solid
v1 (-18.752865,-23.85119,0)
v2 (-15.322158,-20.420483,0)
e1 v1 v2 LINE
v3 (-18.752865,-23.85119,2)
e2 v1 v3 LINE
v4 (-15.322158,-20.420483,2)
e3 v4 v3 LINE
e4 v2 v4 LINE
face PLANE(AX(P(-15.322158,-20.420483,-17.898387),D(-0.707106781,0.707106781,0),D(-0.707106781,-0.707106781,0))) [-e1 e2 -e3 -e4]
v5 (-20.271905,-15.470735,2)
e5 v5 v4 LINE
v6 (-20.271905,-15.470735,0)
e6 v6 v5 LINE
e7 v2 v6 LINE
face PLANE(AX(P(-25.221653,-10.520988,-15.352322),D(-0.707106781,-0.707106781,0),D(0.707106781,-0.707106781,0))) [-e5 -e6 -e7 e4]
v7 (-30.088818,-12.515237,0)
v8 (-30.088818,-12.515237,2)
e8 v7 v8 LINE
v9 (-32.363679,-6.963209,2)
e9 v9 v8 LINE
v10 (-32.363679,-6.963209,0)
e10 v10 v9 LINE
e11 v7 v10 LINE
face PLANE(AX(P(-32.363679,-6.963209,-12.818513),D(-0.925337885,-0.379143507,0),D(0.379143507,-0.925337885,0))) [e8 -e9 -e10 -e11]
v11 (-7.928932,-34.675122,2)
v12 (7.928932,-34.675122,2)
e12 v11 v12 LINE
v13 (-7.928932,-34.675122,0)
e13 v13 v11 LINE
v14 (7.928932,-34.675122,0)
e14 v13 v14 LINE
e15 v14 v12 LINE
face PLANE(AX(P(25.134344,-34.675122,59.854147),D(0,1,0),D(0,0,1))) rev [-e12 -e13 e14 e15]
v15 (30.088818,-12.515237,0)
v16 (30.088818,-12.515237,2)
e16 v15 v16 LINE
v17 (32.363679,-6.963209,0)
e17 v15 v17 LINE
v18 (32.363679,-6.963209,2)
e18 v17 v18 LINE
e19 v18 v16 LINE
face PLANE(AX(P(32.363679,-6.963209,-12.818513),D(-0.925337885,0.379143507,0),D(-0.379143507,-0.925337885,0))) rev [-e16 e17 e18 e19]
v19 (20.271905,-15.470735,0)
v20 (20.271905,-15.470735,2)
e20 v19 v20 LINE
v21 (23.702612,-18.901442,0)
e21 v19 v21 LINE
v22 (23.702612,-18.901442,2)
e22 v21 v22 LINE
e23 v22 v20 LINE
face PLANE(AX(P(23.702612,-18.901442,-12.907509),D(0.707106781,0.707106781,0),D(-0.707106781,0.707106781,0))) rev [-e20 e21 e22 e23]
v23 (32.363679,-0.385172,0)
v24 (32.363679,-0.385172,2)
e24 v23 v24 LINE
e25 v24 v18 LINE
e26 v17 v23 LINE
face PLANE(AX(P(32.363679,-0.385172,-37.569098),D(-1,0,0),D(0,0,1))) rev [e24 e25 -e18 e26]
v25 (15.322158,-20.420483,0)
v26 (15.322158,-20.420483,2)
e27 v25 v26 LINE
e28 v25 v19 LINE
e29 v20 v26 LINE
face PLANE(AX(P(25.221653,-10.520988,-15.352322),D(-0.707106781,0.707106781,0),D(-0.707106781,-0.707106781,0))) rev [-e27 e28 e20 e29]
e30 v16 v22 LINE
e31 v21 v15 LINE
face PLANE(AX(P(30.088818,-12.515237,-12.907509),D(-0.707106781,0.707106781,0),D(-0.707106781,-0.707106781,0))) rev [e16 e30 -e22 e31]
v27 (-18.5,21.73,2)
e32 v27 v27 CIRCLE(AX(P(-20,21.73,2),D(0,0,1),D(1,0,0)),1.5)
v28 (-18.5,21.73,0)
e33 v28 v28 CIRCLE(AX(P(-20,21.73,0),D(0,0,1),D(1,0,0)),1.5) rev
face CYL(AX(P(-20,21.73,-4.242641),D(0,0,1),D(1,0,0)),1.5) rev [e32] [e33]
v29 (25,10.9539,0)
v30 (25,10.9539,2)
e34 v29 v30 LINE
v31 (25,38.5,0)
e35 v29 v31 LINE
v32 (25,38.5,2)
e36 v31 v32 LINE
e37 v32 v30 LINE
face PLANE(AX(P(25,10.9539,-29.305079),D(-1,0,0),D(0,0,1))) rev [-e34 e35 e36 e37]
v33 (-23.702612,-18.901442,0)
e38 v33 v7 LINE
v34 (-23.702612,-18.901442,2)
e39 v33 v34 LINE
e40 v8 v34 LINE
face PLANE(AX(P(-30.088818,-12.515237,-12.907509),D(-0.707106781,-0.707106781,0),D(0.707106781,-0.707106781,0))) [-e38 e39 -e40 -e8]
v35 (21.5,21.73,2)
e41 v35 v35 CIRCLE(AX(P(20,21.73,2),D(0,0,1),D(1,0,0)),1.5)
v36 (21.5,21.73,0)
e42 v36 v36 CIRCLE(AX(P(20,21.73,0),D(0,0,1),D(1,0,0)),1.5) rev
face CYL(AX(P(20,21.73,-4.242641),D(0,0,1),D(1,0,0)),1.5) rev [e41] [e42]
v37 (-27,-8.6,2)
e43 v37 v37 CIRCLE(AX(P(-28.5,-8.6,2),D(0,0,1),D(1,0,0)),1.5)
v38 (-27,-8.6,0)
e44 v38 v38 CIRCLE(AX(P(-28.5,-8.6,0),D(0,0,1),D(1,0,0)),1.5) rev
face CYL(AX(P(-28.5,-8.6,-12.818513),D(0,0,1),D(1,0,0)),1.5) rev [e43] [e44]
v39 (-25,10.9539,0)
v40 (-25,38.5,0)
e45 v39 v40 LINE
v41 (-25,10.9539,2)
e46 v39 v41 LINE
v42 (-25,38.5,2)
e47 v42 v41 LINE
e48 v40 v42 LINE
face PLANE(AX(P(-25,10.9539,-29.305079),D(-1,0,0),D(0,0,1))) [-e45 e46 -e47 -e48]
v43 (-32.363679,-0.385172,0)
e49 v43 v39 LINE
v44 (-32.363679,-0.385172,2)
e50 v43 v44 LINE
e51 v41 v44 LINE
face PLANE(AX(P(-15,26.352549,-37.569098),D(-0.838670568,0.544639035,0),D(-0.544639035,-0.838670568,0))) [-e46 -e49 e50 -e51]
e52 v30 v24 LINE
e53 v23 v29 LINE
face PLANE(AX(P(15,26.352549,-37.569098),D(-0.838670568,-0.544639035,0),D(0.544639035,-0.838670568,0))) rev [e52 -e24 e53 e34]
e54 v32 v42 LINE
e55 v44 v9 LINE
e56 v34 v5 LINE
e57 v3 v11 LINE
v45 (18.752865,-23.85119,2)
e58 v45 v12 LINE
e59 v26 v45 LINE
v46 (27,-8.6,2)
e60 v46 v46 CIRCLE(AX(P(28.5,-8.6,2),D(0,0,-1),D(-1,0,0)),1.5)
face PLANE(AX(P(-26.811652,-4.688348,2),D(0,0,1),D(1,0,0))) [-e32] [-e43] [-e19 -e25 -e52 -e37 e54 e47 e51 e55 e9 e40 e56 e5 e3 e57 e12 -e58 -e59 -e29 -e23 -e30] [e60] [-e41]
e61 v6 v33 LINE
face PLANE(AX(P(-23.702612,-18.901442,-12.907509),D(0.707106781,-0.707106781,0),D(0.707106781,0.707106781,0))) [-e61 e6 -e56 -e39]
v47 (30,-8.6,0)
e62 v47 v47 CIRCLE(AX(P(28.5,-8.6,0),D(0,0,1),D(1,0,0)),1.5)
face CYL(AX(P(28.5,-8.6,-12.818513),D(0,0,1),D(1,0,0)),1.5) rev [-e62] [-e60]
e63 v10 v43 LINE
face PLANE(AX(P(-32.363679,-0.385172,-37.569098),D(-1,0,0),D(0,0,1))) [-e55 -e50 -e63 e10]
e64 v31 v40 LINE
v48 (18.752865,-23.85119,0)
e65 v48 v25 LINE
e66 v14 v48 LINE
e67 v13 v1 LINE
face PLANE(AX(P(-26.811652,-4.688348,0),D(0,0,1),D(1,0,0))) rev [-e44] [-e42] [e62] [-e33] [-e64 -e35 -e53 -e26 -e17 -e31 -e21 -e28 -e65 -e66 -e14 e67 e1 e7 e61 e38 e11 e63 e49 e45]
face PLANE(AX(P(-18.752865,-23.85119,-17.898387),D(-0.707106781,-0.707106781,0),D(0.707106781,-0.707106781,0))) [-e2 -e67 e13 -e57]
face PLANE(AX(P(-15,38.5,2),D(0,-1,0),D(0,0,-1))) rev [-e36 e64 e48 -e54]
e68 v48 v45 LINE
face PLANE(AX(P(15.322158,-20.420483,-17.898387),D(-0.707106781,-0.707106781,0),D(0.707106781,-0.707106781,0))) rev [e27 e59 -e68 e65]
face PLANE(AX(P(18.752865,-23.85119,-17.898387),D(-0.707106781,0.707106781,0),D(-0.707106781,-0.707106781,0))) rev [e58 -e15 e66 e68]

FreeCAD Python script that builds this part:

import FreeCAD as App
import Part
import Sketcher
Q = App.Units.Quantity


def edges_at(feature, points):
    """Names of the edges that pass closest to the given points."""
    edges = feature.Shape.Edges
    near = lambda p: min(range(len(edges)), key=lambda i: edges[i].distToShape(Part.Vertex(*p))[0])
    return sorted({f"Edge{near(p) + 1}" for p in points})

doc = App.newDocument("Part")
body = doc.addObject("PartDesign::Body", "Body")

sketch1 = body.newObject("Sketcher::SketchObject", "Sketch")
sketch1.AttachmentSupport = (doc.getObject("XY_Plane"), [""])
sketch1.MapMode = "FlatFace"
sketch1.addGeometry([
    Part.LineSegment(App.Vector(-15, 38.5, 0), App.Vector(-15, 13.5, 0)),
    Part.LineSegment(App.Vector(-15, 13.5, 0), App.Vector(-26.811652, -4.688348, 0)),
    Part.LineSegment(App.Vector(-26.811652, -4.688348, 0), App.Vector(-15, -16.5, 0)),
    Part.LineSegment(App.Vector(-15, -16.5, 0), App.Vector(-15, -26.5, 0)),
    Part.LineSegment(App.Vector(-15, -26.5, 0), App.Vector(-7.928932, -33.571068, 0)),
    Part.LineSegment(App.Vector(-7.928932, -33.571068, 0), App.Vector(-7.928932, -52.571068, 0)),
    Part.LineSegment(App.Vector(-7.928932, -52.571068, 0), App.Vector(7.928932, -52.571068, 0)),
    Part.LineSegment(App.Vector(7.928932, -52.571068, 0), App.Vector(7.928932, -33.571068, 0)),
    Part.LineSegment(App.Vector(7.928932, -33.571068, 0), App.Vector(15, -26.5, 0)),
    Part.LineSegment(App.Vector(15, -26.5, 0), App.Vector(15, -16.5, 0)),
    Part.LineSegment(App.Vector(15, -16.5, 0), App.Vector(26.811652, -4.688348, 0)),
    Part.LineSegment(App.Vector(26.811652, -4.688348, 0), App.Vector(15, 13.5, 0)),
    Part.LineSegment(App.Vector(15, 13.5, 0), App.Vector(15, 38.5, 0)),
    Part.LineSegment(App.Vector(15, 38.5, 0), App.Vector(-15, 38.5, 0)),
], False)
sketch1.addConstraint([
    Sketcher.Constraint("Coincident", 0, 2, 1, 1),
    Sketcher.Constraint("Coincident", 1, 2, 2, 1),
    Sketcher.Constraint("Coincident", 2, 2, 3, 1),
    Sketcher.Constraint("Coincident", 3, 2, 4, 1),
    Sketcher.Constraint("Coincident", 4, 2, 5, 1),
    Sketcher.Constraint("Coincident", 5, 2, 6, 1),
    Sketcher.Constraint("Coincident", 6, 2, 7, 1),
    Sketcher.Constraint("Coincident", 7, 2, 8, 1),
    Sketcher.Constraint("Coincident", 8, 2, 9, 1),
    Sketcher.Constraint("Coincident", 9, 2, 10, 1),
    Sketcher.Constraint("Coincident", 10, 2, 11, 1),
    Sketcher.Constraint("Coincident", 11, 2, 12, 1),
    Sketcher.Constraint("Coincident", 12, 2, 13, 1),
    Sketcher.Constraint("Coincident", 13, 2, 0, 1),
    Sketcher.Constraint("Vertical", 0),
    Sketcher.Constraint("Vertical", 3),
    Sketcher.Constraint("Vertical", 5),
    Sketcher.Constraint("Horizontal", 6),
    Sketcher.Constraint("Vertical", 7),
    Sketcher.Constraint("Vertical", 9),
    Sketcher.Constraint("Vertical", 12),
    Sketcher.Constraint("Horizontal", 13),
    Sketcher.Constraint("Symmetric", 4, 2, 7, 2, -2),
    Sketcher.Constraint("Symmetric", 3, 2, 8, 2, -2),
    Sketcher.Constraint("Symmetric", 1, 2, 10, 2, -2),
    Sketcher.Constraint("Symmetric", 0, 2, 11, 2, -2),
    Sketcher.Constraint("Parallel", 2, 4),
    Sketcher.Constraint("Perpendicular", 4, 8),
    Sketcher.Constraint("Parallel", 8, 10),
    Sketcher.Constraint("Vertical", 0, 2, 2, 2),
    Sketcher.Constraint("DistanceX", 13, 2, 13, 1, 30.0),
    Sketcher.Constraint("DistanceY", 0, 2, 0, 1, 25.0),
    Sketcher.Constraint("DistanceY", 3, 2, 3, 1, 10.0),
    Sketcher.Constraint("DistanceY", 5, 2, 5, 1, 19.0),
    Sketcher.Constraint("Angle", 1, Q("-123 deg")),
    Sketcher.Constraint("Distance", 4, 10.0),
    Sketcher.Constraint("DistanceY", 2, 2, 0, 2, 30.0),
    Sketcher.Constraint("DistanceY", -1, 1, 0, 2, 13.5),
])
pad1 = body.newObject("PartDesign::Pad", "Pad")
pad1.Profile = sketch1
pad1.Length = 2

sketch2 = body.newObject("Sketcher::SketchObject", "Sketch001")
sketch2.AttachmentSupport = (doc.getObject("XY_Plane"), [""])
sketch2.MapMode = "FlatFace"
sketch2.AttachmentOffset = App.Placement(App.Vector(0, 0, 2), App.Rotation())
sketch2.addGeometry([
    Part.LineSegment(App.Vector(-26.811652, -4.688348, 0), App.Vector(-32.363679, -6.963209, 0)),
    Part.LineSegment(App.Vector(-32.363679, -6.963209, 0), App.Vector(-30.088818, -12.515237, 0)),
    Part.LineSegment(App.Vector(-30.088818, -12.515237, 0), App.Vector(-22.212123, -9.287877, 0)),
    Part.LineSegment(App.Vector(-22.212123, -9.287877, 0), App.Vector(-26.811652, -4.688348, 0)),
    Part.Circle(App.Vector(-28.5, -8.6, 0), App.Vector(0, 0, 1), 1.5),
], False)
sketch2.addConstraint([
    Sketcher.Constraint("Coincident", 0, 2, 1, 1),
    Sketcher.Constraint("Coincident", 1, 2, 2, 1),
    Sketcher.Constraint("Coincident", 2, 2, 3, 1),
    Sketcher.Constraint("Coincident", 3, 2, 0, 1),
    Sketcher.Constraint("Perpendicular", 0, 1),
    Sketcher.Constraint("Perpendicular", 1, 2),
    Sketcher.Constraint("Equal", 0, 1),
    Sketcher.Constraint("Diameter", 4, 3.0),
    Sketcher.Constraint("Angle", 3, Q("135 deg")),
    Sketcher.Constraint("Distance", 0, 6.0),
    Sketcher.Constraint("DistanceX", 4, 3, -1, 1, 28.5),
    Sketcher.Constraint("DistanceY", 4, 3, -1, 1, 8.6),
    Sketcher.Constraint("DistanceX", 0, 2, -1, 1, 32.363679),
    Sketcher.Constraint("DistanceY", 0, 2, -1, 1, 6.963209),
    Sketcher.Constraint("DistanceX", 3, 2, -1, 1, 26.811652),
])
pad2 = body.newObject("PartDesign::Pad", "Pad001")
pad2.Profile = sketch2
pad2.Length = 2
pad2.Reversed = True
doc.recompute()

mirrored = body.newObject("PartDesign::Mirrored", "Mirrored")
mirrored.Originals = [pad2]
mirrored.MirrorPlane = (doc.getObject("YZ_Plane"), [""])
body.Tip = mirrored

sketch3 = body.newObject("Sketcher::SketchObject", "Sketch002")
sketch3.AttachmentSupport = (doc.getObject("XY_Plane"), [""])
sketch3.MapMode = "FlatFace"
sketch3.AttachmentOffset = App.Placement(App.Vector(0, 0, 2), App.Rotation())
sketch3.addGeometry([
    Part.LineSegment(App.Vector(-7.928932, -44.571068, 0), App.Vector(-18, -54.642136, 0)),
    Part.LineSegment(App.Vector(-18, -54.642136, 0), App.Vector(18, -54.642136, 0)),
    Part.LineSegment(App.Vector(18, -54.642136, 0), App.Vector(7.928932, -44.571068, 0)),
    Part.LineSegment(App.Vector(7.928932, -44.571068, 0), App.Vector(-7.928932, -44.571068, 0)),
], False)
sketch3.addConstraint([
    Sketcher.Constraint("Coincident", 0, 2, 1, 1),
    Sketcher.Constraint("Coincident", 1, 2, 2, 1),
    Sketcher.Constraint("Coincident", 2, 2, 3, 1),
    Sketcher.Constraint("Coincident", 3, 2, 0, 1),
    Sketcher.Constraint("Horizontal", 1),
    Sketcher.Constraint("Horizontal", 3),
    Sketcher.Constraint("Perpendicular", 0, 2),
    Sketcher.Constraint("Equal", 0, 2),
    Sketcher.Constraint("DistanceX", 1, 1, 1, 2, 36.0),
    Sketcher.Constraint("DistanceX", 0, 2, -1, 1, 18.0),
    Sketcher.Constraint("Distance", 0, 14.242641),
    Sketcher.Constraint("DistanceY", 0, 2, -1, 1, 54.642136),
])
pad3 = body.newObject("PartDesign::Pad", "Pad002")
pad3.Profile = sketch3
pad3.Length = 2
pad3.Reversed = True
doc.recompute()

fillet = body.newObject("PartDesign::Fillet", "Fillet")
fillet.Base = (pad3, edges_at(pad3, [(18, -54.642, 1), (-18, -54.642, 1)]))
fillet.Radius = 3

sketch4 = body.newObject("Sketcher::SketchObject", "Sketch003")
sketch4.AttachmentSupport = (doc.getObject("XY_Plane"), [""])
sketch4.MapMode = "FlatFace"
sketch4.AttachmentOffset = App.Placement(App.Vector(0, 0, 2), App.Rotation())
sketch4.addGeometry(Part.Circle(App.Vector(-11, -52.002136, 0), App.Vector(0, 0, 1), 1.5), False)
sketch4.addConstraint([
    Sketcher.Constraint("Diameter", 0, 3.0),
    Sketcher.Constraint("DistanceX", 0, 3, -1, 1, 11.0),
    Sketcher.Constraint("DistanceY", 0, 3, -1, 1, 52.002136),
])
pocket1 = body.newObject("PartDesign::Pocket", "Pocket")
pocket1.Profile = sketch4
pocket1.Length = 2
doc.recompute()

mirrored2 = body.newObject("PartDesign::Mirrored", "Mirrored001")
mirrored2.Originals = [pocket1]
mirrored2.MirrorPlane = (doc.getObject("YZ_Plane"), [""])
body.Tip = mirrored2

sketch5 = body.newObject("Sketcher::SketchObject", "Sketch004")
sketch5.AttachmentSupport = (doc.getObject("XY_Plane"), [""])
sketch5.MapMode = "FlatFace"
sketch5.AttachmentOffset = App.Placement(App.Vector(0, 0, 2), App.Rotation())
sketch5.addGeometry([
    Part.LineSegment(App.Vector(-32.363679, -6.963209, 0), App.Vector(-26.811652, -4.688348, 0)),
    Part.LineSegment(App.Vector(-26.811652, -4.688348, 0), App.Vector(-15, 13.5, 0)),
    Part.LineSegment(App.Vector(-15, 13.5, 0), App.Vector(-15, 26.352549, 0)),
    Part.LineSegment(App.Vector(-15, 26.352549, 0), App.Vector(-32.363679, -0.385172, 0)),
    Part.LineSegment(App.Vector(-32.363679, -0.385172, 0), App.Vector(-32.363679, -6.963209, 0)),
], False)
sketch5.addConstraint([
    Sketcher.Constraint("Coincident", 0, 2, 1, 1),
    Sketcher.Constraint("Coincident", 1, 2, 2, 1),
    Sketcher.Constraint("Coincident", 2, 2, 3, 1),
    Sketcher.Constraint("Coincident", 3, 2, 4, 1),
    Sketcher.Constraint("Coincident", 4, 2, 0, 1),
    Sketcher.Constraint("Vertical", 2),
    Sketcher.Constraint("Vertical", 4),
    Sketcher.Constraint("Parallel", 1, 3),
    Sketcher.Constraint("Angle", 1, Q("57 deg")),
    Sketcher.Constraint("Distance", 0, 6.0),
    Sketcher.Constraint("DistanceX", 1, 2, -1, 1, 15.0),
    Sketcher.Constraint("DistanceY", -1, 1, 1, 2, 13.5),
    Sketcher.Constraint("DistanceY", 2, 1, 2, 2, 12.852549),
    Sketcher.Constraint("Distance", 1, 21.687119),
    Sketcher.Constraint("DistanceY", 4, 2, 4, 1, 6.578038),
])
pad4 = body.newObject("PartDesign::Pad", "Pad003")
pad4.Profile = sketch5
pad4.Length = 2
pad4.Reversed = True

sketch6 = body.newObject("Sketcher::SketchObject", "Sketch005")
sketch6.AttachmentSupport = (doc.getObject("XY_Plane"), [""])
sketch6.MapMode = "FlatFace"
sketch6.AttachmentOffset = App.Placement(App.Vector(0, 0, 2), App.Rotation())
sketch6.addGeometry([
    Part.LineSegment(App.Vector(-22.212123, -9.287877, 0), App.Vector(-25.221653, -10.520988, 0)),
    Part.LineSegment(App.Vector(-25.221653, -10.520988, 0), App.Vector(-15, -20.742641, 0)),
    Part.LineSegment(App.Vector(-15, -20.742641, 0), App.Vector(-15, -16.5, 0)),
    Part.LineSegment(App.Vector(-15, -16.5, 0), App.Vector(-22.212123, -9.287877, 0)),
], False)
sketch6.addConstraint([
    Sketcher.Constraint("Coincident", 0, 2, 1, 1),
    Sketcher.Constraint("Coincident", 1, 2, 2, 1),
    Sketcher.Constraint("Coincident", 2, 2, 3, 1),
    Sketcher.Constraint("Coincident", 3, 2, 0, 1),
    Sketcher.Constraint("Vertical", 2),
    Sketcher.Constraint("Parallel", 1, 3),
    Sketcher.Constraint("Angle", 1, Q("-45 deg")),
    Sketcher.Constraint("DistanceX", 1, 2, -1, 1, 15.0),
    Sketcher.Constraint("DistanceY", 2, 2, -1, 1, 16.5),
    Sketcher.Constraint("Distance", 1, 14.4556),
    Sketcher.Constraint("DistanceY", 2, 1, 2, 2, 4.242641),
    Sketcher.Constraint("Distance", 0, 3.252358),
])
pad5 = body.newObject("PartDesign::Pad", "Pad004")
pad5.Profile = sketch6
pad5.Length = 2
pad5.Reversed = True

sketch7 = body.newObject("Sketcher::SketchObject", "Sketch006")
sketch7.AttachmentSupport = (doc.getObject("XY_Plane"), [""])
sketch7.MapMode = "FlatFace"
sketch7.AttachmentOffset = App.Placement(App.Vector(0, 0, 2), App.Rotation())
sketch7.addGeometry([
    Part.LineSegment(App.Vector(-25.221653, -10.520988, 0), App.Vector(-30.088818, -12.515237, 0)),
    Part.LineSegment(App.Vector(-30.088818, -12.515237, 0), App.Vector(-23.702612, -18.901442, 0)),
    Part.LineSegment(App.Vector(-23.702612, -18.901442, 0), App.Vector(-20.271905, -15.470735, 0)),
    Part.LineSegment(App.Vector(-20.271905, -15.470735, 0), App.Vector(-25.221653, -10.520988, 0)),
], False)
sketch7.addConstraint([
    Sketcher.Constraint("Coincident", 0, 2, 1, 1),
    Sketcher.Constraint("Coincident", 1, 2, 2, 1),
    Sketcher.Constraint("Coincident", 2, 2, 3, 1),
    Sketcher.Constraint("Coincident", 3, 2, 0, 1),
    Sketcher.Constraint("Perpendicular", 1, 2),
    Sketcher.Constraint("Perpendicular", 2, 3),
    Sketcher.Constraint("Angle", 1, Q("-45 deg")),
    Sketcher.Constraint("Distance", 3, 7.0),
    Sketcher.Constraint("DistanceY", 2, 2, 0, 2, 2.955499),
    Sketcher.Constraint("Distance", 0, 5.259879),
    Sketcher.Constraint("DistanceX", 0, 2, -1, 1, 30.088818),
    Sketcher.Constraint("DistanceY", 0, 2, -1, 1, 12.515237),
])
pad6 = body.newObject("PartDesign::Pad", "Pad005")
pad6.Profile = sketch7
pad6.Length = 2
pad6.Reversed = True

sketch8 = body.newObject("Sketcher::SketchObject", "Sketch007")
sketch8.AttachmentSupport = (doc.getObject("XY_Plane"), [""])
sketch8.MapMode = "FlatFace"
sketch8.AttachmentOffset = App.Placement(App.Vector(0, 0, 2), App.Rotation())
sketch8.addGeometry([
    Part.LineSegment(App.Vector(-15.322158, -20.420483, 0), App.Vector(-18.752865, -23.85119, 0)),
    Part.LineSegment(App.Vector(-18.752865, -23.85119, 0), App.Vector(-7.928932, -34.675122, 0)),
    Part.LineSegment(App.Vector(-7.928932, -34.675122, 0), App.Vector(-7.928932, -33.571068, 0)),
    Part.LineSegment(App.Vector(-7.928932, -33.571068, 0), App.Vector(-15, -26.5, 0)),
    Part.LineSegment(App.Vector(-15, -26.5, 0), App.Vector(-15, -20.742641, 0)),
    Part.LineSegment(App.Vector(-15, -20.742641, 0), App.Vector(-15.322158, -20.420483, 0)),
], False)
sketch8.addConstraint([
    Sketcher.Constraint("Coincident", 0, 2, 1, 1),
    Sketcher.Constraint("Coincident", 1, 2, 2, 1),
    Sketcher.Constraint("Coincident", 2, 2, 3, 1),
    Sketcher.Constraint("Coincident", 3, 2, 4, 1),
    Sketcher.Constraint("Coincident", 4, 2, 5, 1),
    Sketcher.Constraint("Coincident", 5, 2, 0, 1),
    Sketcher.Constraint("Vertical", 2),
    Sketcher.Constraint("Vertical", 4),
    Sketcher.Constraint("Perpendicular", 0, 1),
    Sketcher.Constraint("Parallel", 1, 3),
    Sketcher.Constraint("Parallel", 3, 5),
    Sketcher.Constraint("Angle", 0, Q("-135 deg")),
    Sketcher.Constraint("Distance", 3, 10.0),
    Sketcher.Constraint("DistanceX", 3, 2, -1, 1, 15.0),
    Sketcher.Constraint("DistanceY", 3, 2, -1, 1, 26.5),
    Sketcher.Constraint("Distance", 5, 0.4556),
    Sketcher.Constraint("DistanceY", 4, 1, 4, 2, 5.757359),
    Sketcher.Constraint("DistanceY", 2, 1, 2, 2, 1.104055),
])
pad7 = body.newObject("PartDesign::Pad", "Pad006")
pad7.Profile = sketch8
pad7.Length = 2
pad7.Reversed = True

sketch9 = body.newObject("Sketcher::SketchObject", "Sketch008")
sketch9.AttachmentSupport = (doc.getObject("XY_Plane"), [""])
sketch9.MapMode = "FlatFace"
sketch9.AttachmentOffset = App.Placement(App.Vector(0, 0, 2), App.Rotation())
sketch9.addGeometry([
    Part.LineSegment(App.Vector(-25, 38.5, 0), App.Vector(-25, 10.9539, 0)),
    Part.LineSegment(App.Vector(-25, 10.9539, 0), App.Vector(-15, 26.352549, 0)),
    Part.LineSegment(App.Vector(-15, 26.352549, 0), App.Vector(-15, 38.5, 0)),
    Part.LineSegment(App.Vector(-15, 38.5, 0), App.Vector(-25, 38.5, 0)),
], False)
sketch9.addConstraint([
    Sketcher.Constraint("Coincident", 0, 2, 1, 1),
    Sketcher.Constraint("Coincident", 1, 2, 2, 1),
    Sketcher.Constraint("Coincident", 2, 2, 3, 1),
    Sketcher.Constraint("Coincident", 3, 2, 0, 1),
    Sketcher.Constraint("Vertical", 0),
    Sketcher.Constraint("Vertical", 2),
    Sketcher.Constraint("Horizontal", 3),
    Sketcher.Constraint("DistanceX", 3, 2, 3, 1, 10.0),
    Sketcher.Constraint("Angle", 1, Q("57 deg")),
    Sketcher.Constraint("DistanceX", 0, 2, -1, 1, 25.0),
    Sketcher.Constraint("DistanceY", -1, 1, 2, 2, 38.5),
    Sketcher.Constraint("DistanceY", 0, 2, 0, 1, 27.5461),
])
pad8 = body.newObject("PartDesign::Pad", "Pad007")
pad8.Profile = sketch9
pad8.Length = 2
pad8.Reversed = True
doc.recompute()

mirrored3 = body.newObject("PartDesign::Mirrored", "Mirrored002")
mirrored3.Originals = [pad4, pad5, pad6, pad7]
mirrored3.MirrorPlane = (doc.getObject("YZ_Plane"), [""])
body.Tip = mirrored3
doc.recompute()

mirrored4 = body.newObject("PartDesign::Mirrored", "Mirrored003")
mirrored4.Originals = [pad8]
mirrored4.MirrorPlane = (doc.getObject("YZ_Plane"), [""])
body.Tip = mirrored4

sketch10 = body.newObject("Sketcher::SketchObject", "Sketch009")
sketch10.AttachmentSupport = (doc.getObject("XY_Plane"), [""])
sketch10.MapMode = "FlatFace"
sketch10.addGeometry([
    Part.LineSegment(App.Vector(25.134344, -34.675122, 0), App.Vector(25.134344, -59.101402, 0)),
    Part.LineSegment(App.Vector(25.134344, -59.101402, 0), App.Vector(-27.310477, -59.101402, 0)),
    Part.LineSegment(App.Vector(-27.310477, -59.101402, 0), App.Vector(-27.310477, -34.675122, 0)),
    Part.LineSegment(App.Vector(-27.310477, -34.675122, 0), App.Vector(25.134344, -34.675122, 0)),
], False)
sketch10.addConstraint([
    Sketcher.Constraint("Coincident", 0, 2, 1, 1),
    Sketcher.Constraint("Coincident", 1, 2, 2, 1),
    Sketcher.Constraint("Coincident", 2, 2, 3, 1),
    Sketcher.Constraint("Coincident", 3, 2, 0, 1),
    Sketcher.Constraint("Vertical", 0),
    Sketcher.Constraint("Horizontal", 1),
    Sketcher.Constraint("Vertical", 2),
    Sketcher.Constraint("Horizontal", 3),
    Sketcher.Constraint("DistanceX", 1, 2, 1, 1, 52.444821),
    Sketcher.Constraint("DistanceY", 0, 2, 0, 1, 24.426279),
    Sketcher.Constraint("DistanceY", 0, 2, -1, 1, 59.101402),
    Sketcher.Constraint("DistanceX", -1, 1, 0, 2, 25.134344),
])
pocket2 = body.newObject("PartDesign::Pocket", "Pocket001")
pocket2.Profile = sketch10
pocket2.Length = 2
pocket2.Reversed = True

sketch11 = body.newObject("Sketcher::SketchObject", "Sketch010")
sketch11.AttachmentSupport = (doc.getObject("XY_Plane"), [""])
sketch11.MapMode = "FlatFace"
sketch11.AttachmentOffset = App.Placement(App.Vector(0, 0, 2), App.Rotation())
sketch11.addGeometry([
    Part.Circle(App.Vector(-20, 21.73, 0), App.Vector(0, 0, 1), 1.5),
    Part.Circle(App.Vector(20, 21.73, 0), App.Vector(0, 0, 1), 1.5),
], False)
sketch11.addConstraint([
    Sketcher.Constraint("Equal", 0, 1),
    Sketcher.Constraint("Symmetric", 0, 3, 1, 3, -2),
    Sketcher.Constraint("Diameter", 0, 3.0),
    Sketcher.Constraint("DistanceX", 0, 3, -1, 1, 20.0),
    Sketcher.Constraint("DistanceY", -1, 1, 0, 3, 21.73),
])
pocket3 = body.newObject("PartDesign::Pocket", "Pocket002")
pocket3.Profile = sketch11
pocket3.Length = 2

doc.recompute()
